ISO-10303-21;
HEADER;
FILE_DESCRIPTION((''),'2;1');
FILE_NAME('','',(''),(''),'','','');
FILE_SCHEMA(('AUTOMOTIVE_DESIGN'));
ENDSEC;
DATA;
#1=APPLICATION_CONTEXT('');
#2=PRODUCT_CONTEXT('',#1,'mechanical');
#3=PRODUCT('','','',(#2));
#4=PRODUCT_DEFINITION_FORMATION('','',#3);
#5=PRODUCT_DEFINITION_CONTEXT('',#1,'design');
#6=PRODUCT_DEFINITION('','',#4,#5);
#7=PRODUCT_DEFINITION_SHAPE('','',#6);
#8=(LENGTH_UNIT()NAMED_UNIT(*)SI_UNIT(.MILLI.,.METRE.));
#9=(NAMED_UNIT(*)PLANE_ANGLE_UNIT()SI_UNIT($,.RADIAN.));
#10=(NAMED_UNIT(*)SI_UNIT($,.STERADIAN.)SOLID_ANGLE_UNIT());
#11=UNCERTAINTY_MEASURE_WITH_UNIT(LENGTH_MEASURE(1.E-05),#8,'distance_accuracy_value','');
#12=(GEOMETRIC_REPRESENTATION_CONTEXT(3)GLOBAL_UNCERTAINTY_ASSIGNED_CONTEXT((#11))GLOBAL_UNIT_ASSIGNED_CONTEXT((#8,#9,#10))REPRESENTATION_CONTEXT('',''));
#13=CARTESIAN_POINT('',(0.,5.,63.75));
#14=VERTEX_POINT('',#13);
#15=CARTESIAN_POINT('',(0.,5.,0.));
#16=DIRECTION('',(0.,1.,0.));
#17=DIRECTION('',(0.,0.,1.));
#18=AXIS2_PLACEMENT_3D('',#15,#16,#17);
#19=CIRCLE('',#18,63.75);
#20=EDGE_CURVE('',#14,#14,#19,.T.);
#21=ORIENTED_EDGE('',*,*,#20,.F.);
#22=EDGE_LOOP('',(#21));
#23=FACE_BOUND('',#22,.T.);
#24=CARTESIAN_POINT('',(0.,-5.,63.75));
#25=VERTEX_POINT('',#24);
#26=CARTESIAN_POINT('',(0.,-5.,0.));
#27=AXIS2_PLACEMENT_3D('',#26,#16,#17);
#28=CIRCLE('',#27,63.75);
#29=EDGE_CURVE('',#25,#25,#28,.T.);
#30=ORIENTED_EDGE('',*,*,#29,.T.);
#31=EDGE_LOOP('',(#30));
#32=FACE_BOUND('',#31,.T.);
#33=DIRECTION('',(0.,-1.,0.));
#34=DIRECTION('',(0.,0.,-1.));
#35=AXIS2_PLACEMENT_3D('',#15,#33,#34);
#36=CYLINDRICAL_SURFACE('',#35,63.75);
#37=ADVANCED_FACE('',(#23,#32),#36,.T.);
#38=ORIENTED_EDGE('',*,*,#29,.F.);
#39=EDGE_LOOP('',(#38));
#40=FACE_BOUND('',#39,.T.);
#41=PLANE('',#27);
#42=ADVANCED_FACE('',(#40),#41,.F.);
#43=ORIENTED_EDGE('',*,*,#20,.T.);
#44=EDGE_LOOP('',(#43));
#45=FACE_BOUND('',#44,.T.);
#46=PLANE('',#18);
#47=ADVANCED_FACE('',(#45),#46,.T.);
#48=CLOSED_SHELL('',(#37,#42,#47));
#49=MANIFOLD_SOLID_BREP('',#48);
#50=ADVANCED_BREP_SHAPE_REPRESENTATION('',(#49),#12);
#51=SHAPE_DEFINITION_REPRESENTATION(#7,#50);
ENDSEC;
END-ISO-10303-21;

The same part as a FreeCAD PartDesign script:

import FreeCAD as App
import Part
import Sketcher
Q = App.Units.Quantity

doc = App.newDocument("Part")
body = doc.addObject("PartDesign::Body", "Body")

# Sketch on XZ plane
sketch1 = body.newObject("Sketcher::SketchObject", "Sketch")
sketch1.AttachmentSupport = (doc.getObject("XZ_Plane"), [""])
sketch1.MapMode = "FlatFace"
sketch1.addGeometry(Part.Circle(App.Vector(0, 0, 0), App.Vector(0, 0, 1), 64), False)
sketch1.addConstraint([
    Sketcher.Constraint("Coincident", 0, 3, -1, 1),
    Sketcher.Constraint("Diameter", 0, Q("127.5 mm")),
])
pad1 = body.newObject("PartDesign::Pad", "Pad")
pad1.Profile = sketch1
pad1.Length = 10
pad1.Midplane = True

doc.recompute()
